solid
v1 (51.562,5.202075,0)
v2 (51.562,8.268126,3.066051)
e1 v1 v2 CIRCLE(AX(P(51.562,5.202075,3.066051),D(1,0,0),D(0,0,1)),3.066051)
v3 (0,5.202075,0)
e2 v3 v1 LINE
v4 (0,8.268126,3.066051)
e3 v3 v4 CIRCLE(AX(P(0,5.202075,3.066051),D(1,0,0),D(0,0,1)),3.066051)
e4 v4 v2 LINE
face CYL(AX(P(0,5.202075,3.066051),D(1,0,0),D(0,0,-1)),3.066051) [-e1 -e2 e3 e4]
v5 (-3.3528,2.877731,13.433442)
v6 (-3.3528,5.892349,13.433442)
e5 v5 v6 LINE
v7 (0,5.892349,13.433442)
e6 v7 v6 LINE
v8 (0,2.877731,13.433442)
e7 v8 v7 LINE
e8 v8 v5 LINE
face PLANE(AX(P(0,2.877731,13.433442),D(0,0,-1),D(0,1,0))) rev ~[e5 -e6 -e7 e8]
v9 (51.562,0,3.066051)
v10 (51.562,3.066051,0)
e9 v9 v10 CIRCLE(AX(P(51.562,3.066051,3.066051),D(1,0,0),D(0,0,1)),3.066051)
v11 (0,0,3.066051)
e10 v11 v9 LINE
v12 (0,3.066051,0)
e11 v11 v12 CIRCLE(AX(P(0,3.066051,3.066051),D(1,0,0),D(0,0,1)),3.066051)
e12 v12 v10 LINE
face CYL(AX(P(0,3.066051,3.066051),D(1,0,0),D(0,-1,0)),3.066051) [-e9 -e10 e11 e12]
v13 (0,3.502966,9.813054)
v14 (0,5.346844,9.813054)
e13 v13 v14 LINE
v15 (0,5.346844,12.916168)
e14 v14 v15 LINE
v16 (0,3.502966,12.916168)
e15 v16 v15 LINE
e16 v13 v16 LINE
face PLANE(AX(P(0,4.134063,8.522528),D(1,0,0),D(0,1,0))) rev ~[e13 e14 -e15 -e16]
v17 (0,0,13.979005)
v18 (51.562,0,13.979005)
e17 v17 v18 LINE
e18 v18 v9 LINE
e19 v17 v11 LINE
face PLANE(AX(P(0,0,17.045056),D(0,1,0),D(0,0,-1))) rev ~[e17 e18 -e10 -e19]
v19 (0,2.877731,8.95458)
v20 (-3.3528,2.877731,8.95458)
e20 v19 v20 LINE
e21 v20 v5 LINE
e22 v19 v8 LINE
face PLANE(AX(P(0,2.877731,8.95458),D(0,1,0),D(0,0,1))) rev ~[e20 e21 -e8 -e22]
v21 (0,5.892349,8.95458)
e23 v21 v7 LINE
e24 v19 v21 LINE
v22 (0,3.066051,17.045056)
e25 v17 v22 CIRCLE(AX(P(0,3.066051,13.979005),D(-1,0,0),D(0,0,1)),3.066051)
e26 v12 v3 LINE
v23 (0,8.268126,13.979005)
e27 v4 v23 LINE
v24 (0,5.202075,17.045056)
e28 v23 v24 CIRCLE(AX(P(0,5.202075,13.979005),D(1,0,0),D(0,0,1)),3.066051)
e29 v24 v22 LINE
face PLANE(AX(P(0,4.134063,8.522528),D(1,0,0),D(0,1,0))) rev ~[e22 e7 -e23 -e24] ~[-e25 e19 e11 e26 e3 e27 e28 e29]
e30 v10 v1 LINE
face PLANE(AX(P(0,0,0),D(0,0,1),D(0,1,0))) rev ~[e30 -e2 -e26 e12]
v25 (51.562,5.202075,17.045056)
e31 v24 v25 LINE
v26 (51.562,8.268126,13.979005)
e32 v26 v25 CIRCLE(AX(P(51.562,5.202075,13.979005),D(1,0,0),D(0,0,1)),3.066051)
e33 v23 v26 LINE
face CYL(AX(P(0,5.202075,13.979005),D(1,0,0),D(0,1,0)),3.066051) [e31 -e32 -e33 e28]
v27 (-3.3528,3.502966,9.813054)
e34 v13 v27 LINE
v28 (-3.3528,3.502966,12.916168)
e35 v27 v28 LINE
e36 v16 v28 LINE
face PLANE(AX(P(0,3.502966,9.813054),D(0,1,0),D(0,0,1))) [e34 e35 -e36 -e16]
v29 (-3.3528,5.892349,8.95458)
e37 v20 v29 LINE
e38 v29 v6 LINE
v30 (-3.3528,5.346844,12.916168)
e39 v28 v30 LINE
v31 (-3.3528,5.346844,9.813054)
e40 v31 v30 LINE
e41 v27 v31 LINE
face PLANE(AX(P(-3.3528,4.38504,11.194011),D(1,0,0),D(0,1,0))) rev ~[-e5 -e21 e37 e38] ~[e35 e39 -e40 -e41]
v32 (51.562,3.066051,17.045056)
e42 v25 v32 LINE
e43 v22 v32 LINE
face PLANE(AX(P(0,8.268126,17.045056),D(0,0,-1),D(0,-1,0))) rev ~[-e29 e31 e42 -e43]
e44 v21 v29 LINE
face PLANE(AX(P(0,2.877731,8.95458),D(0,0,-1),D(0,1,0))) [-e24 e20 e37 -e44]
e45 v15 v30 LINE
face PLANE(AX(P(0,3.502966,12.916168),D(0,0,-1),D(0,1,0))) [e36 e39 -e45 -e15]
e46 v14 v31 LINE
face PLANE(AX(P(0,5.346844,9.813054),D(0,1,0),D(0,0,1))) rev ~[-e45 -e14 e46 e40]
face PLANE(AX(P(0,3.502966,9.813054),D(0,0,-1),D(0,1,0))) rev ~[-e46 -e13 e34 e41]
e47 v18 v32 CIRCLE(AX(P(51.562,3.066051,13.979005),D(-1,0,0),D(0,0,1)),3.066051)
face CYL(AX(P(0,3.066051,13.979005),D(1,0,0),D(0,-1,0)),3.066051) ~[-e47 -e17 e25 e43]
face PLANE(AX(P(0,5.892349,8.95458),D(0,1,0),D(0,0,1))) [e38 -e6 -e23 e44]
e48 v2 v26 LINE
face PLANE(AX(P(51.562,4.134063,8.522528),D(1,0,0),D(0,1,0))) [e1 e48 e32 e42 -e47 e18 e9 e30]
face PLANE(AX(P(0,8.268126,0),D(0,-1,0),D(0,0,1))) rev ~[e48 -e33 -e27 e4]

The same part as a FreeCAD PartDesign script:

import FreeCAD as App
import Part
import Sketcher
from FreeCAD import Vector
Q = App.Units.Quantity


def edges_at(feature, points):
    """Names of the edges that pass closest to the given points."""
    edges = feature.Shape.Edges
    near = lambda p: min(range(len(edges)), key=lambda i: edges[i].distToShape(Part.Vertex(*p))[0])
    return sorted({f"Edge{near(p) + 1}" for p in points})


def add_polygon(sketch, points):
    """Adds a closed chain of lines whose ends are joined by coincident constraints."""
    first, n = sketch.GeometryCount, len(points)
    for a, b in zip(points, points[1:] + points[:1]):
        sketch.addGeometry(Part.LineSegment(App.Vector(*a, 0), App.Vector(*b, 0)), False)
    for i in range(n):
        sketch.addConstraint(Sketcher.Constraint("Coincident", first + i, 2, first + (i + 1) % n, 1))

doc = App.newDocument("Part")
body = doc.addObject("PartDesign::Body", "Body")

sketch1 = doc.addObject("Sketcher::SketchObject", "Sketch")
body.addObject(sketch1)
sketch1.AttachmentSupport = (doc.YZ_Plane, [""])
sketch1.MapMode = "FlatFace"
add_polygon(sketch1, [(0, 17.045056), (0, 0), (8.268126, 0), (8.268126, 17.045056)])
sketch1.addConstraint(Sketcher.Constraint("Vertical", 0))
sketch1.addConstraint(Sketcher.Constraint("Horizontal", 1))
sketch1.addConstraint(Sketcher.Constraint("Vertical", 2))
sketch1.addConstraint(Sketcher.Constraint("Horizontal", 3))
sketch1.addConstraint(Sketcher.Constraint("Coincident", 0, 2, -1, 1))
sketch1.addConstraint(Sketcher.Constraint("DistanceX", 1, 1, 1, 2, Q("8.268126 mm")))
sketch1.addConstraint(Sketcher.Constraint("DistanceY", 0, 2, 0, 1, Q("17.045056 mm")))
pad1 = doc.addObject("PartDesign::Pad", "Pad")
body.addObject(pad1)
pad1.Profile = sketch1
pad1.Length = Q("2.03 in")
doc.recompute()

fillet = doc.addObject("PartDesign::Fillet", "Fillet")
body.addObject(fillet)
fillet.Base = (pad1, edges_at(pad1, [
    (25.781, 8.268, 17.045),
    (25.781, 0, 17.045),
    (25.781, 8.268, 0),
    (25.781, 0, 0),
]))
fillet.Radius = 3.066051

sketch2 = doc.addObject("Sketcher::SketchObject", "Sketch001")
body.addObject(sketch2)
sketch2.AttachmentSupport = (doc.YZ_Plane, [""])
sketch2.MapMode = "FlatFace"
add_polygon(sketch2, [(2.877731, 13.433442), (2.877731, 8.95458), (5.892349, 8.95458), (5.892349, 13.433442)])
add_polygon(sketch2, [(5.346844, 9.813054), (3.502966, 9.813054), (3.502966, 12.916168), (5.346844, 12.916168)])
sketch2.addConstraint(Sketcher.Constraint("Vertical", 0))
sketch2.addConstraint(Sketcher.Constraint("Horizontal", 1))
sketch2.addConstraint(Sketcher.Constraint("Vertical", 2))
sketch2.addConstraint(Sketcher.Constraint("Horizontal", 3))
sketch2.addConstraint(Sketcher.Constraint("Horizontal", 4))
sketch2.addConstraint(Sketcher.Constraint("Vertical", 5))
sketch2.addConstraint(Sketcher.Constraint("Horizontal", 6))
sketch2.addConstraint(Sketcher.Constraint("Vertical", 7))
sketch2.addConstraint(Sketcher.Constraint("DistanceX", 1, 1, 1, 2, Q("3.014619 mm")))
sketch2.addConstraint(Sketcher.Constraint("DistanceX", 4, 2, 4, 1, Q("1.843878 mm")))
sketch2.addConstraint(Sketcher.Constraint("DistanceY", 0, 2, 0, 1, Q("4.478862 mm")))
sketch2.addConstraint(Sketcher.Constraint("DistanceY", 5, 1, 5, 2, Q("3.103115 mm")))
sketch2.addConstraint(Sketcher.Constraint("DistanceX", -1, 1, 0, 2, Q("2.877731 mm")))
sketch2.addConstraint(Sketcher.Constraint("DistanceY", -1, 1, 0, 2, Q("8.95458 mm")))
sketch2.addConstraint(Sketcher.Constraint("DistanceY", -1, 1, 5, 2, Q("12.916168 mm")))
sketch2.addConstraint(Sketcher.Constraint("DistanceX", -1, 1, 4, 2, Q("3.502966 mm")))
pad2 = doc.addObject("PartDesign::Pad", "Pad001")
body.addObject(pad2)
pad2.Profile = sketch2
pad2.Length = Q("0.132 in")
pad2.Reversed = True

doc.recompute()
